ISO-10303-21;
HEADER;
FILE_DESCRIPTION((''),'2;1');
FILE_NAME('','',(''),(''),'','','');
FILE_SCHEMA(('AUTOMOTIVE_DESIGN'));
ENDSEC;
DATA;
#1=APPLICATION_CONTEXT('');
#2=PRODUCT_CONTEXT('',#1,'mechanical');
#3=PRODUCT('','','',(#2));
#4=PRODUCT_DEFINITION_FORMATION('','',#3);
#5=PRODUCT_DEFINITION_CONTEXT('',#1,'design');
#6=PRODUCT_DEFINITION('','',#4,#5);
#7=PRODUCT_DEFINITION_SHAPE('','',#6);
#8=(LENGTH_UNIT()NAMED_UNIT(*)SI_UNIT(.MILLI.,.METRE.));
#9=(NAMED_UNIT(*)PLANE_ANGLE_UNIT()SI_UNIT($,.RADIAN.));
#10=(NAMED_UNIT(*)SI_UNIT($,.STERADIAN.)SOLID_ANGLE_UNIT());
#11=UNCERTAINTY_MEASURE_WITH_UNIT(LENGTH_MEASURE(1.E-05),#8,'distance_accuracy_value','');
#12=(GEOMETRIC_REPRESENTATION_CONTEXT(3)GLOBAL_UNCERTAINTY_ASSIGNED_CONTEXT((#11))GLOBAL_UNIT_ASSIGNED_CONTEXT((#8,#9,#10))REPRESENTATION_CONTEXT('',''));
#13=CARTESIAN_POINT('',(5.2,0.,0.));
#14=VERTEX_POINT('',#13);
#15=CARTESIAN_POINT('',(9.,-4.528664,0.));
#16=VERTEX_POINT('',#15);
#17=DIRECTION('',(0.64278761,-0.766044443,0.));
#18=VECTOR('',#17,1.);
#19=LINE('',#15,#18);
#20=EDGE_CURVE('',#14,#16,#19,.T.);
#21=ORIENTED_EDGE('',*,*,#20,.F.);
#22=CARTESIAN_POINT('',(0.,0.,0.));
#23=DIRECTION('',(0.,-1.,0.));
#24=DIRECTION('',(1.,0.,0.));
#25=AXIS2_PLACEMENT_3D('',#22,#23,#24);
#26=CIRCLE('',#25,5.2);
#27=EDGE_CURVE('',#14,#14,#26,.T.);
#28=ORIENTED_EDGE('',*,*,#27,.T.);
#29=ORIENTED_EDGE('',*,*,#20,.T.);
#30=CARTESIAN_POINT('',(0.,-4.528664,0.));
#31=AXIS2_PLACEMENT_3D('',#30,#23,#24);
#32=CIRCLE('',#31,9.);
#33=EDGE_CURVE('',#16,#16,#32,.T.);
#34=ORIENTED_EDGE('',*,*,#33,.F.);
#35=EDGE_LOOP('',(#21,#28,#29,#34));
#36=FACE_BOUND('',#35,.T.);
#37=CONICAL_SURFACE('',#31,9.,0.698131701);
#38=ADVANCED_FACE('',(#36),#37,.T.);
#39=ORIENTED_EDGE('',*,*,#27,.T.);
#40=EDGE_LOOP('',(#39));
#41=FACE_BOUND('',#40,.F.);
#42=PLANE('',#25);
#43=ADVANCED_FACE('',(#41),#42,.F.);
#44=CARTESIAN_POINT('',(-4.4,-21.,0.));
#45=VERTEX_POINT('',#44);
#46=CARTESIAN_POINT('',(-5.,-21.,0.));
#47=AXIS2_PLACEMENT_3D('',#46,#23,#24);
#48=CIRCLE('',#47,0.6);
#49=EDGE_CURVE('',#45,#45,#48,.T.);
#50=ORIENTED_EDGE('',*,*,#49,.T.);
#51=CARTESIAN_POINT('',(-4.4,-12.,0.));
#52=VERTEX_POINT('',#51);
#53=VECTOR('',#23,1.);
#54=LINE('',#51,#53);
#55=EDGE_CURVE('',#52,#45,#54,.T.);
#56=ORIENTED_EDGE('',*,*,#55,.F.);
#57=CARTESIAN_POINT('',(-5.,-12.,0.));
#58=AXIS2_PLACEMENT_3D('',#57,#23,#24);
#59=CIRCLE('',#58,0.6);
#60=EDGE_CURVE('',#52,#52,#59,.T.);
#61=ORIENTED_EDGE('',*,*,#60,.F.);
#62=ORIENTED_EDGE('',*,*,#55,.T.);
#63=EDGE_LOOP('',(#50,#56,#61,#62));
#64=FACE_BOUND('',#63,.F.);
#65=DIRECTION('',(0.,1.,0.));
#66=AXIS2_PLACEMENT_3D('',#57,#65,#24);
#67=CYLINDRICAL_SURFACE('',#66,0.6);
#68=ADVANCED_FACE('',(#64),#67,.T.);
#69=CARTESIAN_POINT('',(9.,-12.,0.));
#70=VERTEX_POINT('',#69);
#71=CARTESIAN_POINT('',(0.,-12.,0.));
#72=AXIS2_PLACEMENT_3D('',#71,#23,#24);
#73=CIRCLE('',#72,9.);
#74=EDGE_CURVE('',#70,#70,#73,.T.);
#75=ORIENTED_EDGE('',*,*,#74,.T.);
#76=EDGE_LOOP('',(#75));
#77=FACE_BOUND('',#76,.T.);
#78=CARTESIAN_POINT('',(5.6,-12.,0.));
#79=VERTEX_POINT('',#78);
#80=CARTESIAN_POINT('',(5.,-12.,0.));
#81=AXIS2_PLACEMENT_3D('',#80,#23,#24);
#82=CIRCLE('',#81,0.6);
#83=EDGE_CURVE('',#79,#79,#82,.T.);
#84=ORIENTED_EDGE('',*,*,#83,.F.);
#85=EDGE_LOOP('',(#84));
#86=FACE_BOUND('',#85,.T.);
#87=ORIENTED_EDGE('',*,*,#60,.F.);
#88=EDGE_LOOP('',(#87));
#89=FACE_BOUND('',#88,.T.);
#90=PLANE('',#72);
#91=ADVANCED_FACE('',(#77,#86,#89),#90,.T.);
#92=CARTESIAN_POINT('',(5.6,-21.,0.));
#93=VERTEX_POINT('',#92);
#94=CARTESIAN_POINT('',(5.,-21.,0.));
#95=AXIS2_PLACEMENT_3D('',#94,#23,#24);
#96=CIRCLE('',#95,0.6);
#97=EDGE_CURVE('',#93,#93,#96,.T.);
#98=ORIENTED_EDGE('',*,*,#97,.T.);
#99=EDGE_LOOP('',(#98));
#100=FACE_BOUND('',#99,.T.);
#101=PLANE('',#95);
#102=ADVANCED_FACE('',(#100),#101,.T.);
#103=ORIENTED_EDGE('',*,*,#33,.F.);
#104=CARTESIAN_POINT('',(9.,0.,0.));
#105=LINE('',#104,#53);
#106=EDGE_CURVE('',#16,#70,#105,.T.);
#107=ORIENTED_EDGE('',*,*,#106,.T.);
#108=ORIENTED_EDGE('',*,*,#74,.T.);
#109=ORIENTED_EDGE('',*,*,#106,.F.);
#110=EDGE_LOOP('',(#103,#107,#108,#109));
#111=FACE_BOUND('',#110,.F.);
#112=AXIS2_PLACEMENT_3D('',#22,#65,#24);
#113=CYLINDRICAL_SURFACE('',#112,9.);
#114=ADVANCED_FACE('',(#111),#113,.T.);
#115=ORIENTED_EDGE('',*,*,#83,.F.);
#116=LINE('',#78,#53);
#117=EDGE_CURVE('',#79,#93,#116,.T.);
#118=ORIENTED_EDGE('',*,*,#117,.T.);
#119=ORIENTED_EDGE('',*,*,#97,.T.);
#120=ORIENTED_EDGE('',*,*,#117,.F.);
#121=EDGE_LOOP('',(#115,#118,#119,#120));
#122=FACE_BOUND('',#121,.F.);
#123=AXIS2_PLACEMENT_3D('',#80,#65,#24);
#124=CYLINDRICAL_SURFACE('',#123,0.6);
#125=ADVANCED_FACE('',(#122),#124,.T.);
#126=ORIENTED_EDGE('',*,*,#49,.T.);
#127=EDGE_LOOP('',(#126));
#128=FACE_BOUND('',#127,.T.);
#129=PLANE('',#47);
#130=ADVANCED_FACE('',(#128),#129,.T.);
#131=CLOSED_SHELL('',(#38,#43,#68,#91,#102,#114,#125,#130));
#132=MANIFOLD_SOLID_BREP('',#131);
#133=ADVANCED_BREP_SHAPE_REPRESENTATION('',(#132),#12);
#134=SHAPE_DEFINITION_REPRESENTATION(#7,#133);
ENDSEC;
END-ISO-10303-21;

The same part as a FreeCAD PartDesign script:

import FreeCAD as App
import Part
import Sketcher
from FreeCAD import Vector


def edges_at(feature, points):
    """Names of the edges that pass closest to the given points."""
    edges = feature.Shape.Edges
    near = lambda p: min(range(len(edges)), key=lambda i: edges[i].distToShape(Part.Vertex(*p))[0])
    return sorted({f"Edge{near(p) + 1}" for p in points})

doc = App.newDocument("Part")
body = doc.addObject("PartDesign::Body", "Body")

sketch1 = doc.addObject("Sketcher::SketchObject", "Sketch")
body.addObject(sketch1)
sketch1.AttachmentSupport = (doc.XZ_Plane, [""])
sketch1.MapMode = "FlatFace"
sketch1.addGeometry(Part.Circle(Vector(0, 0, 0), Vector(0, 0, 1), 9), False)
sketch1.addConstraint(Sketcher.Constraint("Coincident", 0, 3, -1, 1))
sketch1.addConstraint(Sketcher.Constraint("Diameter", 0, 18.0))
pad1 = doc.addObject("PartDesign::Pad", "Pad")
body.addObject(pad1)
pad1.Profile = sketch1
pad1.Length = 12
doc.recompute()

chamfer = doc.addObject("PartDesign::Chamfer", "Chamfer")
body.addObject(chamfer)
chamfer.Base = (pad1, edges_at(pad1, [(-9, 0, 0)]))
chamfer.ChamferType = "Two distances"
chamfer.Size = 3.8
chamfer.Size2 = 4.528664
chamfer.FlipDirection = True

sketch2 = doc.addObject("Sketcher::SketchObject", "Sketch001")
body.addObject(sketch2)
sketch2.AttachmentSupport = (doc.XZ_Plane, [""])
sketch2.MapMode = "FlatFace"
sketch2.AttachmentOffset = App.Placement(Vector(0, 0, 12), App.Rotation())
sketch2.addGeometry(Part.Circle(Vector(-5, 0, 0), Vector(0, 0, 1), 0.6), False)
sketch2.addGeometry(Part.Circle(Vector(5, 0, 0), Vector(0, 0, 1), 0.6), False)
sketch2.addConstraint(Sketcher.Constraint("Equal", 0, 1))
sketch2.addConstraint(Sketcher.Constraint("Symmetric", 0, 3, 1, 3, -1, 1))
sketch2.addConstraint(Sketcher.Constraint("PointOnObject", 0, 3, -1))
sketch2.addConstraint(Sketcher.Constraint("Diameter", 0, 1.2))
sketch2.addConstraint(Sketcher.Constraint("DistanceX", 0, 3, -1, 1, 5.0))
pad2 = doc.addObject("PartDesign::Pad", "Pad001")
body.addObject(pad2)
pad2.Profile = sketch2
pad2.Length = 9

doc.recompute()
